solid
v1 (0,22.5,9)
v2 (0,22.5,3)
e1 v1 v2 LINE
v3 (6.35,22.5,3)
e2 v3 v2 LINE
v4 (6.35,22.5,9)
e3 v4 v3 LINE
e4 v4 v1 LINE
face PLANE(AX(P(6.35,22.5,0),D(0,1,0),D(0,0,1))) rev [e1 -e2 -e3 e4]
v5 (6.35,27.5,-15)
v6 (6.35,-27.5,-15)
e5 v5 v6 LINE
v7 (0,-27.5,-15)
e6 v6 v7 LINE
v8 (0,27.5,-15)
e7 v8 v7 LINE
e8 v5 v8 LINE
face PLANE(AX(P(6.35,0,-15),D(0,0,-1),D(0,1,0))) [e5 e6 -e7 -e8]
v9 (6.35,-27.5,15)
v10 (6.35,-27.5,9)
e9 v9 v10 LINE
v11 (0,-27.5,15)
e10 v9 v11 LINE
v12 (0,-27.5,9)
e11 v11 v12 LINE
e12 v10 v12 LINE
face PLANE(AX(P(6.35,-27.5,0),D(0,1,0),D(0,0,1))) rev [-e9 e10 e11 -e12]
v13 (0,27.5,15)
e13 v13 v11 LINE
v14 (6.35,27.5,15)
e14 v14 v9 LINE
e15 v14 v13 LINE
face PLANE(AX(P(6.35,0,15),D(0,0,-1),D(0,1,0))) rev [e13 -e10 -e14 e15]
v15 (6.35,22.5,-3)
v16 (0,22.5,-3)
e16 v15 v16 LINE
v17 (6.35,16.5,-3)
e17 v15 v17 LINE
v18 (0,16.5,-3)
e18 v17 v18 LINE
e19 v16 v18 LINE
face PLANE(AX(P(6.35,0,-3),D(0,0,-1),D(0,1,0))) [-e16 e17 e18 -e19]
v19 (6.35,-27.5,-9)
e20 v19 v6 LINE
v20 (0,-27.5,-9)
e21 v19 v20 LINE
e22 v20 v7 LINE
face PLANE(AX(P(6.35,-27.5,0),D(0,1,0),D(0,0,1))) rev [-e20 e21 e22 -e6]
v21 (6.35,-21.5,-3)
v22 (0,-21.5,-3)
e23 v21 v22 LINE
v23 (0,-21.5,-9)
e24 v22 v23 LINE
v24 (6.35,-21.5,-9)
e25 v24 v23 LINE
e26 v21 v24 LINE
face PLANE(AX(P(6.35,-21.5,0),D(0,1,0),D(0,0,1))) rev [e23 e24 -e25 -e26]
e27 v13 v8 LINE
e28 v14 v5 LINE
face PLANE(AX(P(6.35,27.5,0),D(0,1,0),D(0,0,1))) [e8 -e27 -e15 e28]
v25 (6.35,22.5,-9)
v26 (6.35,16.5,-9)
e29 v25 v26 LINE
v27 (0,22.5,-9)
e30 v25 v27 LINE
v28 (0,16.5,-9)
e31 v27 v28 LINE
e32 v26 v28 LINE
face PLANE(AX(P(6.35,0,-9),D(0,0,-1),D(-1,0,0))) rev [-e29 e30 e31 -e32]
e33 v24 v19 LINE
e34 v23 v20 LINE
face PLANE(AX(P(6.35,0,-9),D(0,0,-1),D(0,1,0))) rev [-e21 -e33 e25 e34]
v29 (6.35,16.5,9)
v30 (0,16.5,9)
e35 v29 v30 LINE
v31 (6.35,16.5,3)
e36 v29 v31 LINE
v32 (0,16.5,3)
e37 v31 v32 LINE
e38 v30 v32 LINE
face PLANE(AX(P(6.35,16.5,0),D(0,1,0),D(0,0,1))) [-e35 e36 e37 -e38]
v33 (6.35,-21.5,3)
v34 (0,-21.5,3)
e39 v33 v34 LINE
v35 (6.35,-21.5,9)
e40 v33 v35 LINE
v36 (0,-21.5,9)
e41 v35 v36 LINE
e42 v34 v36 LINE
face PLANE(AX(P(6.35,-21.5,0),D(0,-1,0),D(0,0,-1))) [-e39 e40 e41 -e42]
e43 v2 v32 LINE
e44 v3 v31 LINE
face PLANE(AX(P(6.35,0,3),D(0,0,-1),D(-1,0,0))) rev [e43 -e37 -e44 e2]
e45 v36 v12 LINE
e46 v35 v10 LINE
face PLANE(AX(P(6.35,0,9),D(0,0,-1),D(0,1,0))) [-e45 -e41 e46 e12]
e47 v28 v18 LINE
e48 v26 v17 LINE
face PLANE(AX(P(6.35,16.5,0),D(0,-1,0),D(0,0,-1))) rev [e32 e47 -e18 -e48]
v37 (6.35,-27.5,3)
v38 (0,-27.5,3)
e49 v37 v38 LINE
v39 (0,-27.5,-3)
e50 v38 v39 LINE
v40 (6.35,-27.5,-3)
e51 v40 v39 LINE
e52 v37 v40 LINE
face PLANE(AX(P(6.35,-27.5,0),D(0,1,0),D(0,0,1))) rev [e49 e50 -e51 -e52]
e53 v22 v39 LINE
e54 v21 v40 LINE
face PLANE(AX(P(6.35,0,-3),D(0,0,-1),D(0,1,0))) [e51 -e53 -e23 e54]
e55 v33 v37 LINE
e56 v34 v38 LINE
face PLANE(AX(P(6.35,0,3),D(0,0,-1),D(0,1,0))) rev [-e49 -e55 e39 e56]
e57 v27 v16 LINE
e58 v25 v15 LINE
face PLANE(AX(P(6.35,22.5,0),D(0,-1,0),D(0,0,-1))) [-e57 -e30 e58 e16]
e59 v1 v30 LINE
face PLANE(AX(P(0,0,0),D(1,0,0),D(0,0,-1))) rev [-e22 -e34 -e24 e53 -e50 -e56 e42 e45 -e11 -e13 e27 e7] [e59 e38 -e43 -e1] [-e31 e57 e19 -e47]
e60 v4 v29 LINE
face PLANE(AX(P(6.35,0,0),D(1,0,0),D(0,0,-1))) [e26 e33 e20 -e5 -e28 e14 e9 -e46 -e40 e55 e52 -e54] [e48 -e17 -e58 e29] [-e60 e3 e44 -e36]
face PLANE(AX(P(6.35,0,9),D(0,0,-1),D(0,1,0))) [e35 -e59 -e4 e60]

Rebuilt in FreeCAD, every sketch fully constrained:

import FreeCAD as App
import Part
import Sketcher

V = App.Vector
Q = App.Units.Quantity


def add_polygon(sketch, points):
    """Adds a closed chain of lines whose ends are joined by coincident constraints."""
    first, n = sketch.GeometryCount, len(points)
    for a, b in zip(points, points[1:] + points[:1]):
        sketch.addGeometry(Part.LineSegment(App.Vector(*a, 0), App.Vector(*b, 0)), False)
    for i in range(n):
        sketch.addConstraint(Sketcher.Constraint("Coincident", first + i, 2, first + (i + 1) % n, 1))

doc = App.newDocument("Part")
body = doc.addObject("PartDesign::Body", "Body")

sketch1 = body.newObject("Sketcher::SketchObject", "Sketch")
sketch1.AttachmentSupport = (doc.getObject("YZ_Plane"), [""])
sketch1.MapMode = "FlatFace"
add_polygon(sketch1, [(-21.5, 3), (-27.5, 3), (-27.5, -3), (-21.5, -3), (-21.5, -9), (-27.5, -9), (-27.5, -15), (27.5, -15), (27.5, 15), (-27.5, 15), (-27.5, 9), (-21.5, 9)])
add_polygon(sketch1, [(16.5, 3), (16.5, 9), (22.5, 9), (22.5, 3)])
add_polygon(sketch1, [(16.5, -9), (16.5, -3), (22.5, -3), (22.5, -9)])
sketch1.addConstraint(Sketcher.Constraint("Horizontal", 0))
sketch1.addConstraint(Sketcher.Constraint("Vertical", 1))
sketch1.addConstraint(Sketcher.Constraint("Horizontal", 2))
sketch1.addConstraint(Sketcher.Constraint("Vertical", 3))
sketch1.addConstraint(Sketcher.Constraint("Horizontal", 4))
sketch1.addConstraint(Sketcher.Constraint("Vertical", 5))
sketch1.addConstraint(Sketcher.Constraint("Horizontal", 6))
sketch1.addConstraint(Sketcher.Constraint("Vertical", 7))
sketch1.addConstraint(Sketcher.Constraint("Horizontal", 8))
sketch1.addConstraint(Sketcher.Constraint("Vertical", 9))
sketch1.addConstraint(Sketcher.Constraint("Horizontal", 10))
sketch1.addConstraint(Sketcher.Constraint("Vertical", 11))
sketch1.addConstraint(Sketcher.Constraint("Vertical", 12))
sketch1.addConstraint(Sketcher.Constraint("Horizontal", 13))
sketch1.addConstraint(Sketcher.Constraint("Vertical", 14))
sketch1.addConstraint(Sketcher.Constraint("Horizontal", 15))
sketch1.addConstraint(Sketcher.Constraint("Vertical", 16))
sketch1.addConstraint(Sketcher.Constraint("Horizontal", 17))
sketch1.addConstraint(Sketcher.Constraint("Vertical", 18))
sketch1.addConstraint(Sketcher.Constraint("Horizontal", 19))
sketch1.addConstraint(Sketcher.Constraint("Symmetric", 5, 2, 7, 2, -1, 1))
sketch1.addConstraint(Sketcher.Constraint("Symmetric", 4, 2, 9, 2, -1))
sketch1.addConstraint(Sketcher.Constraint("Symmetric", 2, 2, 11, 2, -1))
sketch1.addConstraint(Sketcher.Constraint("Symmetric", 15, 2, 16, 2, -1))
sketch1.addConstraint(Sketcher.Constraint("Symmetric", 13, 2, 18, 2, -1))
sketch1.addConstraint(Sketcher.Constraint("Horizontal", 10, 2, 12, 2))
sketch1.addConstraint(Sketcher.Constraint("Horizontal", 11, 2, 14, 2))
sketch1.addConstraint(Sketcher.Constraint("Vertical", 1, 2, 4, 2))
sketch1.addConstraint(Sketcher.Constraint("Equal", 10, 13))
sketch1.addConstraint(Sketcher.Constraint("Equal", 19, 1))
sketch1.addConstraint(Sketcher.Constraint("Equal", 1, 3))
sketch1.addConstraint(Sketcher.Constraint("Equal", 3, 5))
sketch1.addConstraint(Sketcher.Constraint("DistanceX", 0, 2, 0, 1, Q("6 mm")))
sketch1.addConstraint(Sketcher.Constraint("DistanceX", 6, 1, 6, 2, Q("55 mm")))
sketch1.addConstraint(Sketcher.Constraint("DistanceX", 12, 2, 7, 2, Q("11 mm")))
pad1 = body.newObject("PartDesign::Pad", "Pad")
pad1.Profile = sketch1
pad1.Length = 6.35

doc.recompute()
